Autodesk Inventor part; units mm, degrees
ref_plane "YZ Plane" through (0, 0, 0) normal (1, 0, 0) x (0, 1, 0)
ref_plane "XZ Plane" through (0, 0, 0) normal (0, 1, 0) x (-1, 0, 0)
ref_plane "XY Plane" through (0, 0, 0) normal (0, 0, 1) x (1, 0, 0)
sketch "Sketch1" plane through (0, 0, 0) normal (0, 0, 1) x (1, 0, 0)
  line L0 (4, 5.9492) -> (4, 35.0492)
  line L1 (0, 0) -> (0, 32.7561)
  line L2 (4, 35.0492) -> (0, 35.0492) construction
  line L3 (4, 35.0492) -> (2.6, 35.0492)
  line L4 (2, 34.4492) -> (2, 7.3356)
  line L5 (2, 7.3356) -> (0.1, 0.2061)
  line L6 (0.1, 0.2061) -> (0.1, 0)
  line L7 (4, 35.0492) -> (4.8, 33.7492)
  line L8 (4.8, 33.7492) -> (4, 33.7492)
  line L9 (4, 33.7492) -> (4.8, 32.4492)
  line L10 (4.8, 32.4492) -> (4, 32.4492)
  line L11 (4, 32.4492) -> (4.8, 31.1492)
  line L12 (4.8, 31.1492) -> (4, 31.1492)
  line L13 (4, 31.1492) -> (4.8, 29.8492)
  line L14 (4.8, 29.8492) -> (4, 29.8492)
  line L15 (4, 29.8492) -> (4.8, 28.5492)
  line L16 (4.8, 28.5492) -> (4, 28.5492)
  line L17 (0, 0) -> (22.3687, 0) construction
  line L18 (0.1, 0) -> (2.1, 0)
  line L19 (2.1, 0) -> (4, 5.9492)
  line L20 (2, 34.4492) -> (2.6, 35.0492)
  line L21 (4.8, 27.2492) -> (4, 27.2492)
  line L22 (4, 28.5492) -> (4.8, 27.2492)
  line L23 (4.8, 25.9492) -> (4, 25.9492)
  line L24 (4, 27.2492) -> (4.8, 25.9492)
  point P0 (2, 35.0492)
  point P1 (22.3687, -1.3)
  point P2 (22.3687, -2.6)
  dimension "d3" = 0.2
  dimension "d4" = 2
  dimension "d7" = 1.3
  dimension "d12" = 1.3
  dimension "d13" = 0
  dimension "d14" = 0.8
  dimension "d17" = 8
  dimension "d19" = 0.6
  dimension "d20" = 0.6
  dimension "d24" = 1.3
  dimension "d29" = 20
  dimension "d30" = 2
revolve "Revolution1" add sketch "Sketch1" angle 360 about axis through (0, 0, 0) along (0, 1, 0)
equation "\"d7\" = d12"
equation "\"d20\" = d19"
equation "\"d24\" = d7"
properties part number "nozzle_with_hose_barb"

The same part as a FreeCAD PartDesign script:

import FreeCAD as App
import Part
import Sketcher

V = App.Vector
Q = App.Units.Quantity


def add_polygon(sketch, points):
    """Adds a closed chain of lines whose ends are joined by coincident constraints."""
    first, n = sketch.GeometryCount, len(points)
    for a, b in zip(points, points[1:] + points[:1]):
        sketch.addGeometry(Part.LineSegment(App.Vector(*a, 0), App.Vector(*b, 0)), False)
    for i in range(n):
        sketch.addConstraint(Sketcher.Constraint("Coincident", first + i, 2, first + (i + 1) % n, 1))

doc = App.newDocument("Part")
body = doc.addObject("PartDesign::Body", "Body")

# Sketch on XY plane
sketch1 = doc.addObject("Sketcher::SketchObject", "Sketch")
body.addObject(sketch1)
sketch1.AttachmentSupport = (doc.XY_Plane, [""])
sketch1.MapMode = "FlatFace"
add_polygon(sketch1, [(2.1, 0), (4, 5.95), (4, 25.95), (4.8, 25.95), (4, 27.25), (4.8, 27.25), (4, 28.55), (4.8, 28.55), (4, 29.85), (4.8, 29.85), (4, 31.15), (4.8, 31.15), (4, 32.45), (4.8, 32.45), (4, 33.75), (4.8, 33.75), (4, 35.05), (2.6, 35.05), (2, 34.45), (2, 7.34), (0.1, 0.21), (0.1, 0)])  # lines 0-21
sketch1.addConstraint([
    Sketcher.Constraint("Vertical", 1),
    Sketcher.Constraint("Horizontal", 2),
    Sketcher.Constraint("Horizontal", 4),
    Sketcher.Constraint("Horizontal", 6),
    Sketcher.Constraint("Horizontal", 8),
    Sketcher.Constraint("Horizontal", 10),
    Sketcher.Constraint("Horizontal", 12),
    Sketcher.Constraint("Horizontal", 14),
    Sketcher.Constraint("Horizontal", 16),
    Sketcher.Constraint("Vertical", 18),
    Sketcher.Constraint("Vertical", 20),
    Sketcher.Constraint("Horizontal", 21),
    Sketcher.Constraint("PointOnObject", 20, 2, -1),
    Sketcher.Constraint("Parallel", 3, 5),
    Sketcher.Constraint("Parallel", 5, 7),
    Sketcher.Constraint("Parallel", 7, 9),
    Sketcher.Constraint("Parallel", 9, 11),
    Sketcher.Constraint("Parallel", 11, 13),
    Sketcher.Constraint("Parallel", 13, 15),
    Sketcher.Constraint("Vertical", 1, 2, 3, 2),
    Sketcher.Constraint("Vertical", 2, 2, 4, 2),
    Sketcher.Constraint("Vertical", 3, 2, 5, 2),
    Sketcher.Constraint("Vertical", 4, 2, 6, 2),
    Sketcher.Constraint("Vertical", 5, 2, 7, 2),
    Sketcher.Constraint("Vertical", 6, 2, 8, 2),
    Sketcher.Constraint("Vertical", 7, 2, 9, 2),
    Sketcher.Constraint("Vertical", 8, 2, 10, 2),
    Sketcher.Constraint("Vertical", 9, 2, 11, 2),
    Sketcher.Constraint("Vertical", 10, 2, 12, 2),
    Sketcher.Constraint("Vertical", 11, 2, 13, 2),
    Sketcher.Constraint("Vertical", 12, 2, 14, 2),
    Sketcher.Constraint("Vertical", 13, 2, 15, 2),
    Sketcher.Constraint("DistanceX", 21, 1, 21, 2, Q("2 mm")),
    Sketcher.Constraint("DistanceY", 1, 1, 1, 2, Q("20 mm")),
    Sketcher.Constraint("DistanceX", 2, 1, 2, 2, Q("0.8 mm")),
    Sketcher.Constraint("DistanceX", -1, 1, 17, 2, Q("2 mm")),
    Sketcher.Constraint("DistanceX", 17, 2, 15, 2, Q("2 mm")),
    Sketcher.Constraint("DistanceY", 11, 2, 17, 2, Q("2 mm")),
    Sketcher.Constraint("DistanceY", 1, 2, 3, 2, Q("1.3 mm")),
    Sketcher.Constraint("DistanceX", 17, 2, 16, 2, Q("0.6 mm")),
    Sketcher.Constraint("DistanceX", -1, 1, 19, 2, Q("0.1 mm")),
    Sketcher.Constraint("DistanceY", 20, 2, 20, 1, Q("0.206 mm")),
    Sketcher.Constraint("DistanceY", 18, 2, 18, 1, Q("27.1136 mm")),
    Sketcher.Constraint("DistanceY", 19, 2, 0, 2, Q("5.743 mm")),
])
revolution = doc.addObject("PartDesign::Revolution", "Revolution")
body.addObject(revolution)
revolution.Profile = sketch1
revolution.ReferenceAxis = (sketch1, ["V_Axis"])
revolution.Angle = 360

doc.recompute()
